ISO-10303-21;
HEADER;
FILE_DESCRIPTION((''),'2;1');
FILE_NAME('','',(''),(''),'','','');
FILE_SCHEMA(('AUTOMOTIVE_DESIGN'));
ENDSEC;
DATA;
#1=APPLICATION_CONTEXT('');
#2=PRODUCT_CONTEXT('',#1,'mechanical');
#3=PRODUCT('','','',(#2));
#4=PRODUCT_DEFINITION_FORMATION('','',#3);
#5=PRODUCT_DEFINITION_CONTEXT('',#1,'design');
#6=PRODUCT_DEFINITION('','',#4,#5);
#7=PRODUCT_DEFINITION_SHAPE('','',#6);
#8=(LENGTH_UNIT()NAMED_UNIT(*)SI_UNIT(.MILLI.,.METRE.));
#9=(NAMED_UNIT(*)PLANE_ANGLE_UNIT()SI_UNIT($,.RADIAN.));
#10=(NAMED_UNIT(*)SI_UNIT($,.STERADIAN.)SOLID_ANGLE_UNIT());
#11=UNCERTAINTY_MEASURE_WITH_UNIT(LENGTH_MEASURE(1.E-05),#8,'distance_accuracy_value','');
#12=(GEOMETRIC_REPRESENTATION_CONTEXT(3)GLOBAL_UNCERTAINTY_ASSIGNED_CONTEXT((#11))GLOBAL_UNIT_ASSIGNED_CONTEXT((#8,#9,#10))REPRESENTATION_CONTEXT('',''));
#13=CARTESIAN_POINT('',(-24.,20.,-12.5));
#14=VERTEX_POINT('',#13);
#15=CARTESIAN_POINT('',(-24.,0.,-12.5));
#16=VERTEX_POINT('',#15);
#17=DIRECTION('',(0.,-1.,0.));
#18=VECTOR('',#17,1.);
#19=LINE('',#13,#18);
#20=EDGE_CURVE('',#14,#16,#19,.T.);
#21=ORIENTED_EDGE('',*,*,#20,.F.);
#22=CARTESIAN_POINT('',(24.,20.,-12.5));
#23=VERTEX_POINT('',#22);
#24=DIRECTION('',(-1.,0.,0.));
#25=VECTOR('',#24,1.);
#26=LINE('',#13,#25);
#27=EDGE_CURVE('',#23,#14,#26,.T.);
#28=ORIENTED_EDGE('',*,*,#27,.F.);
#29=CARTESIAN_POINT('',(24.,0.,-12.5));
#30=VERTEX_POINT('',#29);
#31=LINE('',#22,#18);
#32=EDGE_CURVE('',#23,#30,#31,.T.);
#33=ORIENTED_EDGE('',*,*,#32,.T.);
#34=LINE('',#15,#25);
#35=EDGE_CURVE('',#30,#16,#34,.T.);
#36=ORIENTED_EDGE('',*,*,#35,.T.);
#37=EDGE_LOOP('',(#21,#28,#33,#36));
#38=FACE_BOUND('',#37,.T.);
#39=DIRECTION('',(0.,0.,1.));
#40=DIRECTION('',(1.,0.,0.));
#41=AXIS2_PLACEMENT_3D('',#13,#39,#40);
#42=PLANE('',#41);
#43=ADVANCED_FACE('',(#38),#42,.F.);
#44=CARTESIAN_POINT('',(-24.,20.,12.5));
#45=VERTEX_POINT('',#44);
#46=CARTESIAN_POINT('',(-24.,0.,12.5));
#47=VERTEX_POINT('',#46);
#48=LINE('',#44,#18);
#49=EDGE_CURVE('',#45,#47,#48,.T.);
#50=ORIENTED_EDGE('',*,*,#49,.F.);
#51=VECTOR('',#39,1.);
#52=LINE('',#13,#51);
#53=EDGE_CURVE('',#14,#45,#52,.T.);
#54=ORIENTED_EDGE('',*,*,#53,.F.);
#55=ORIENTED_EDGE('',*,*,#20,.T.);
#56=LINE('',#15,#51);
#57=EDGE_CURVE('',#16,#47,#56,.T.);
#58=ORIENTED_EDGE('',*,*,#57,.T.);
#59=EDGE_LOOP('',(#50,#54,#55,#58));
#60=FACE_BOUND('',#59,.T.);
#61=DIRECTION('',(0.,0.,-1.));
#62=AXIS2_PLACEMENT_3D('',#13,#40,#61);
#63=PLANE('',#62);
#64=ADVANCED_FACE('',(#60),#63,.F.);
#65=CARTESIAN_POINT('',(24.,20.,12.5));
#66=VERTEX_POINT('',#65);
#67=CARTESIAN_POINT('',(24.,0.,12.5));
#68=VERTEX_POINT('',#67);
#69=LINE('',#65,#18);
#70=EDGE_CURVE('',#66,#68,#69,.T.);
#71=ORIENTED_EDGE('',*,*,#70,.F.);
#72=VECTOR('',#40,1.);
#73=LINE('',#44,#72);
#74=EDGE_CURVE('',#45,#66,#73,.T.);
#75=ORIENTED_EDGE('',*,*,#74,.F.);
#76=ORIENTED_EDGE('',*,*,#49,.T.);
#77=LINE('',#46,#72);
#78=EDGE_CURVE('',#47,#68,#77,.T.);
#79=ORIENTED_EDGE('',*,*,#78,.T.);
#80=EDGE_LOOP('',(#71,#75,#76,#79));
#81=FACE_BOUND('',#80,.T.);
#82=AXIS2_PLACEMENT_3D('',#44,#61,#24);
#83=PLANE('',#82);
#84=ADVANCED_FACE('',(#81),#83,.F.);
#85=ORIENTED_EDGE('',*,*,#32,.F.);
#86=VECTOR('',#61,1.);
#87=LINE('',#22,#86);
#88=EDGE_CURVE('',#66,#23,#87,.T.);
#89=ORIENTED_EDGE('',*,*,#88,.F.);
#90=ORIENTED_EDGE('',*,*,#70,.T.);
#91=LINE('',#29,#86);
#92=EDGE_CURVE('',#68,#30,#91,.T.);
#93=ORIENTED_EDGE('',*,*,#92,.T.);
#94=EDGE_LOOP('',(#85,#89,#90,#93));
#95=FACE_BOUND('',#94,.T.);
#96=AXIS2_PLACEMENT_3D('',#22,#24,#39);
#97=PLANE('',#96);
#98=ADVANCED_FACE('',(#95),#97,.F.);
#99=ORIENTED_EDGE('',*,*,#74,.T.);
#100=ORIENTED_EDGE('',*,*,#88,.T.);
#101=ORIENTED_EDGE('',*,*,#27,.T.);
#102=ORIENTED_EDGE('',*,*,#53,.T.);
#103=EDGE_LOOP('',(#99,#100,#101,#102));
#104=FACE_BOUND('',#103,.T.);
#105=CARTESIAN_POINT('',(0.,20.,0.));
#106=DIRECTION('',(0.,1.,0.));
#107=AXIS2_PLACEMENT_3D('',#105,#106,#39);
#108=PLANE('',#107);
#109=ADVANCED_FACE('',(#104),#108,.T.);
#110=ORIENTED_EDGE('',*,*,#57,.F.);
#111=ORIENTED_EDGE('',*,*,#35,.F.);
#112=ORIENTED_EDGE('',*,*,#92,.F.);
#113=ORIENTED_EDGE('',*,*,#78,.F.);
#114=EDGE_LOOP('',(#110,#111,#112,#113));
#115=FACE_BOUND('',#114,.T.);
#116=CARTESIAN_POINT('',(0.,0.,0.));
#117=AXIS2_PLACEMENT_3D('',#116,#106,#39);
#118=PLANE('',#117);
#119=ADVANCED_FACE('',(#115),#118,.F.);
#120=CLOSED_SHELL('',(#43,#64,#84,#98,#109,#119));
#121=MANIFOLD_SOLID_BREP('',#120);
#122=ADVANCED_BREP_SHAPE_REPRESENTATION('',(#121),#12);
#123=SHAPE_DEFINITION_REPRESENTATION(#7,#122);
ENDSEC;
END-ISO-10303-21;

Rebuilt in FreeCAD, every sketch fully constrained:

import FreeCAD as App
import Part
import Sketcher
from FreeCAD import Vector
Q = App.Units.Quantity


def add_polygon(sketch, points):
    """Adds a closed chain of lines whose ends are joined by coincident constraints."""
    first, n = sketch.GeometryCount, len(points)
    for a, b in zip(points, points[1:] + points[:1]):
        sketch.addGeometry(Part.LineSegment(App.Vector(*a, 0), App.Vector(*b, 0)), False)
    for i in range(n):
        sketch.addConstraint(Sketcher.Constraint("Coincident", first + i, 2, first + (i + 1) % n, 1))

doc = App.newDocument("Part")
body = doc.addObject("PartDesign::Body", "Body")

# Sketch on XZ plane
sketch1 = body.newObject("Sketcher::SketchObject", "Sketch")
sketch1.AttachmentSupport = (doc.getObject("XZ_Plane"), [""])
sketch1.MapMode = "FlatFace"
add_polygon(sketch1, [(-24, -12), (-24, 12), (24, 12), (24, -12)])  # lines 0-3
sketch1.addConstraint(Sketcher.Constraint("Vertical", 0))
sketch1.addConstraint(Sketcher.Constraint("Horizontal", 1))
sketch1.addConstraint(Sketcher.Constraint("Vertical", 2))
sketch1.addConstraint(Sketcher.Constraint("Horizontal", 3))
sketch1.addConstraint(Sketcher.Constraint("Symmetric", 0, 2, 2, 2, -1, 1))
sketch1.addConstraint(Sketcher.Constraint("DistanceX", 1, 1, 1, 2, Q("48 mm")))
sketch1.addConstraint(Sketcher.Constraint("DistanceY", 0, 1, 0, 2, Q("25 mm")))
pad1 = body.newObject("PartDesign::Pad", "Pad")
pad1.Profile = sketch1
pad1.Length = 20
pad1.Reversed = True

doc.recompute()
